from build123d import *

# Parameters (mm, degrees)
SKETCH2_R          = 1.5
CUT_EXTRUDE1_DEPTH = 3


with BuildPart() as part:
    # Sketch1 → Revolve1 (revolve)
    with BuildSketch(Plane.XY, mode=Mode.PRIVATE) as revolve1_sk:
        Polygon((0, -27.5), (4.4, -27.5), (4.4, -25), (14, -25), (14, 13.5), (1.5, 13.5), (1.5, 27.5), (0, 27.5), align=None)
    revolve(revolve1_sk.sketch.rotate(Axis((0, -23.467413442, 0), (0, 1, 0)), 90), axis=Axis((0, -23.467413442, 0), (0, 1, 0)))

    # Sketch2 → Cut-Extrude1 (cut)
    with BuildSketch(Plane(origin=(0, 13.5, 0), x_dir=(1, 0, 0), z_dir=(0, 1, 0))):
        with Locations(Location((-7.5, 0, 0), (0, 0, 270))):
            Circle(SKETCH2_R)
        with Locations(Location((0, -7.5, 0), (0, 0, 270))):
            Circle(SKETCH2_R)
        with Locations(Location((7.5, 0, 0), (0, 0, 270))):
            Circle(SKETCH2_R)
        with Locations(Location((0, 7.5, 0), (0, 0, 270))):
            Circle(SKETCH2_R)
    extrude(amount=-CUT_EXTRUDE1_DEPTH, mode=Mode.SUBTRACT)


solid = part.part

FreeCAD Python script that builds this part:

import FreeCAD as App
import Part
import Sketcher


def add_polygon(sketch, points):
    """Adds a closed chain of lines whose ends are joined by coincident constraints."""
    first, n = sketch.GeometryCount, len(points)
    for a, b in zip(points, points[1:] + points[:1]):
        sketch.addGeometry(Part.LineSegment(App.Vector(*a, 0), App.Vector(*b, 0)), False)
    for i in range(n):
        sketch.addConstraint(Sketcher.Constraint("Coincident", first + i, 2, first + (i + 1) % n, 1))

doc = App.newDocument("Part")
params = doc.addObject("Spreadsheet::Sheet", "Params")
for row, (alias, value) in enumerate([
    ("sketch1_height", "14 mm"),
    ("sketch1_height2", "55 mm"),
    ("sketch1_width", "4.4 mm"),
    ("sketch1_width2", "9.6 mm"),
    ("sketch1_width3", "12.5 mm"),
    ("revolution_angle", "360 deg"),
    ("sketch2_diameter", "3 mm"),
    ("pocket1_length", "3 mm"),
], start=1):
    params.set(f"A{row}", alias)
    params.set(f"B{row}", "=" + value)
    params.setAlias(f"B{row}", alias)

body = doc.addObject("PartDesign::Body", "Body")

# Sketch on XY plane
sketch1 = body.newObject("Sketcher::SketchObject", "Sketch")
sketch1.AttachmentSupport = (doc.getObject("XY_Plane"), [""])
sketch1.MapMode = "FlatFace"
add_polygon(sketch1, [(0, -27.5), (4.4, -27.5), (4.4, -25), (14, -25), (14, 13.5), (1.5, 13.5), (1.5, 27.5), (0, 27.5)])  # lines 0-7
sketch1.addConstraint([
    Sketcher.Constraint("Horizontal", 0),
    Sketcher.Constraint("Vertical", 1),
    Sketcher.Constraint("Horizontal", 2),
    Sketcher.Constraint("Vertical", 3),
    Sketcher.Constraint("Horizontal", 4),
    Sketcher.Constraint("Vertical", 5),
    Sketcher.Constraint("Horizontal", 6),
    Sketcher.Constraint("Vertical", 7),
    Sketcher.Constraint("Symmetric", 6, 2, 7, 2, -1, 1),
    Sketcher.Constraint("DistanceY", 5, 1, 5, 2, 14.0),
    Sketcher.Constraint("DistanceY", 7, 2, 7, 1, 55.0),
    Sketcher.Constraint("DistanceX", 0, 1, 0, 2, 4.4),
    Sketcher.Constraint("DistanceX", 2, 1, 2, 2, 9.6),
    Sketcher.Constraint("DistanceX", 4, 2, 4, 1, 12.5),
    Sketcher.Constraint("DistanceY", 1, 1, 1, 2, 2.5),
])
sketch1.setExpression("Constraints[17]", "Params.sketch1_height")
sketch1.setExpression("Constraints[18]", "Params.sketch1_height2")
sketch1.setExpression("Constraints[19]", "Params.sketch1_width")
sketch1.setExpression("Constraints[20]", "Params.sketch1_width2")
sketch1.setExpression("Constraints[21]", "Params.sketch1_width3")
revolution = body.newObject("PartDesign::Revolution", "Revolution")
revolution.Profile = sketch1
revolution.ReferenceAxis = (sketch1, ["V_Axis"])
revolution.setExpression("Angle", "Params.revolution_angle")

# Sketch on XZ plane
sketch2 = body.newObject("Sketcher::SketchObject", "Sketch001")
sketch2.AttachmentSupport = (doc.getObject("XZ_Plane"), [""])
sketch2.MapMode = "FlatFace"
sketch2.AttachmentOffset = App.Placement(App.Vector(0, 0, -13.5), App.Rotation())
sketch2.addGeometry([
    Part.Circle(App.Vector(-7.5, 0, 0), App.Vector(0, 0, 1), 1.5),
    Part.Circle(App.Vector(0, 7.5, 0), App.Vector(0, 0, 1), 1.5),
    Part.Circle(App.Vector(7.5, 0, 0), App.Vector(0, 0, 1), 1.5),
    Part.Circle(App.Vector(0, -7.5, 0), App.Vector(0, 0, 1), 1.5),
], False)
sketch2.addConstraint([
    Sketcher.Constraint("Equal", 0, 1),
    Sketcher.Constraint("Equal", 1, 2),
    Sketcher.Constraint("Equal", 2, 3),
    Sketcher.Constraint("Symmetric", 0, 3, 2, 3, -1, 1),
    Sketcher.Constraint("Symmetric", 1, 3, 3, 3, -1, 1),
    Sketcher.Constraint("PointOnObject", 0, 3, -1),
    Sketcher.Constraint("PointOnObject", 1, 3, -2),
    Sketcher.Constraint("Diameter", 0, 3.0),
    Sketcher.Constraint("DistanceX", 0, 3, 2, 3, 15.0),
    Sketcher.Constraint("DistanceY", 3, 3, 1, 3, 15.0),
])
sketch2.setExpression("Constraints[7]", "Params.sketch2_diameter")
pocket1 = body.newObject("PartDesign::Pocket", "Pocket")
pocket1.Profile = sketch2
pocket1.setExpression("Length", "Params.pocket1_length")
pocket1.Reversed = True

doc.recompute()
